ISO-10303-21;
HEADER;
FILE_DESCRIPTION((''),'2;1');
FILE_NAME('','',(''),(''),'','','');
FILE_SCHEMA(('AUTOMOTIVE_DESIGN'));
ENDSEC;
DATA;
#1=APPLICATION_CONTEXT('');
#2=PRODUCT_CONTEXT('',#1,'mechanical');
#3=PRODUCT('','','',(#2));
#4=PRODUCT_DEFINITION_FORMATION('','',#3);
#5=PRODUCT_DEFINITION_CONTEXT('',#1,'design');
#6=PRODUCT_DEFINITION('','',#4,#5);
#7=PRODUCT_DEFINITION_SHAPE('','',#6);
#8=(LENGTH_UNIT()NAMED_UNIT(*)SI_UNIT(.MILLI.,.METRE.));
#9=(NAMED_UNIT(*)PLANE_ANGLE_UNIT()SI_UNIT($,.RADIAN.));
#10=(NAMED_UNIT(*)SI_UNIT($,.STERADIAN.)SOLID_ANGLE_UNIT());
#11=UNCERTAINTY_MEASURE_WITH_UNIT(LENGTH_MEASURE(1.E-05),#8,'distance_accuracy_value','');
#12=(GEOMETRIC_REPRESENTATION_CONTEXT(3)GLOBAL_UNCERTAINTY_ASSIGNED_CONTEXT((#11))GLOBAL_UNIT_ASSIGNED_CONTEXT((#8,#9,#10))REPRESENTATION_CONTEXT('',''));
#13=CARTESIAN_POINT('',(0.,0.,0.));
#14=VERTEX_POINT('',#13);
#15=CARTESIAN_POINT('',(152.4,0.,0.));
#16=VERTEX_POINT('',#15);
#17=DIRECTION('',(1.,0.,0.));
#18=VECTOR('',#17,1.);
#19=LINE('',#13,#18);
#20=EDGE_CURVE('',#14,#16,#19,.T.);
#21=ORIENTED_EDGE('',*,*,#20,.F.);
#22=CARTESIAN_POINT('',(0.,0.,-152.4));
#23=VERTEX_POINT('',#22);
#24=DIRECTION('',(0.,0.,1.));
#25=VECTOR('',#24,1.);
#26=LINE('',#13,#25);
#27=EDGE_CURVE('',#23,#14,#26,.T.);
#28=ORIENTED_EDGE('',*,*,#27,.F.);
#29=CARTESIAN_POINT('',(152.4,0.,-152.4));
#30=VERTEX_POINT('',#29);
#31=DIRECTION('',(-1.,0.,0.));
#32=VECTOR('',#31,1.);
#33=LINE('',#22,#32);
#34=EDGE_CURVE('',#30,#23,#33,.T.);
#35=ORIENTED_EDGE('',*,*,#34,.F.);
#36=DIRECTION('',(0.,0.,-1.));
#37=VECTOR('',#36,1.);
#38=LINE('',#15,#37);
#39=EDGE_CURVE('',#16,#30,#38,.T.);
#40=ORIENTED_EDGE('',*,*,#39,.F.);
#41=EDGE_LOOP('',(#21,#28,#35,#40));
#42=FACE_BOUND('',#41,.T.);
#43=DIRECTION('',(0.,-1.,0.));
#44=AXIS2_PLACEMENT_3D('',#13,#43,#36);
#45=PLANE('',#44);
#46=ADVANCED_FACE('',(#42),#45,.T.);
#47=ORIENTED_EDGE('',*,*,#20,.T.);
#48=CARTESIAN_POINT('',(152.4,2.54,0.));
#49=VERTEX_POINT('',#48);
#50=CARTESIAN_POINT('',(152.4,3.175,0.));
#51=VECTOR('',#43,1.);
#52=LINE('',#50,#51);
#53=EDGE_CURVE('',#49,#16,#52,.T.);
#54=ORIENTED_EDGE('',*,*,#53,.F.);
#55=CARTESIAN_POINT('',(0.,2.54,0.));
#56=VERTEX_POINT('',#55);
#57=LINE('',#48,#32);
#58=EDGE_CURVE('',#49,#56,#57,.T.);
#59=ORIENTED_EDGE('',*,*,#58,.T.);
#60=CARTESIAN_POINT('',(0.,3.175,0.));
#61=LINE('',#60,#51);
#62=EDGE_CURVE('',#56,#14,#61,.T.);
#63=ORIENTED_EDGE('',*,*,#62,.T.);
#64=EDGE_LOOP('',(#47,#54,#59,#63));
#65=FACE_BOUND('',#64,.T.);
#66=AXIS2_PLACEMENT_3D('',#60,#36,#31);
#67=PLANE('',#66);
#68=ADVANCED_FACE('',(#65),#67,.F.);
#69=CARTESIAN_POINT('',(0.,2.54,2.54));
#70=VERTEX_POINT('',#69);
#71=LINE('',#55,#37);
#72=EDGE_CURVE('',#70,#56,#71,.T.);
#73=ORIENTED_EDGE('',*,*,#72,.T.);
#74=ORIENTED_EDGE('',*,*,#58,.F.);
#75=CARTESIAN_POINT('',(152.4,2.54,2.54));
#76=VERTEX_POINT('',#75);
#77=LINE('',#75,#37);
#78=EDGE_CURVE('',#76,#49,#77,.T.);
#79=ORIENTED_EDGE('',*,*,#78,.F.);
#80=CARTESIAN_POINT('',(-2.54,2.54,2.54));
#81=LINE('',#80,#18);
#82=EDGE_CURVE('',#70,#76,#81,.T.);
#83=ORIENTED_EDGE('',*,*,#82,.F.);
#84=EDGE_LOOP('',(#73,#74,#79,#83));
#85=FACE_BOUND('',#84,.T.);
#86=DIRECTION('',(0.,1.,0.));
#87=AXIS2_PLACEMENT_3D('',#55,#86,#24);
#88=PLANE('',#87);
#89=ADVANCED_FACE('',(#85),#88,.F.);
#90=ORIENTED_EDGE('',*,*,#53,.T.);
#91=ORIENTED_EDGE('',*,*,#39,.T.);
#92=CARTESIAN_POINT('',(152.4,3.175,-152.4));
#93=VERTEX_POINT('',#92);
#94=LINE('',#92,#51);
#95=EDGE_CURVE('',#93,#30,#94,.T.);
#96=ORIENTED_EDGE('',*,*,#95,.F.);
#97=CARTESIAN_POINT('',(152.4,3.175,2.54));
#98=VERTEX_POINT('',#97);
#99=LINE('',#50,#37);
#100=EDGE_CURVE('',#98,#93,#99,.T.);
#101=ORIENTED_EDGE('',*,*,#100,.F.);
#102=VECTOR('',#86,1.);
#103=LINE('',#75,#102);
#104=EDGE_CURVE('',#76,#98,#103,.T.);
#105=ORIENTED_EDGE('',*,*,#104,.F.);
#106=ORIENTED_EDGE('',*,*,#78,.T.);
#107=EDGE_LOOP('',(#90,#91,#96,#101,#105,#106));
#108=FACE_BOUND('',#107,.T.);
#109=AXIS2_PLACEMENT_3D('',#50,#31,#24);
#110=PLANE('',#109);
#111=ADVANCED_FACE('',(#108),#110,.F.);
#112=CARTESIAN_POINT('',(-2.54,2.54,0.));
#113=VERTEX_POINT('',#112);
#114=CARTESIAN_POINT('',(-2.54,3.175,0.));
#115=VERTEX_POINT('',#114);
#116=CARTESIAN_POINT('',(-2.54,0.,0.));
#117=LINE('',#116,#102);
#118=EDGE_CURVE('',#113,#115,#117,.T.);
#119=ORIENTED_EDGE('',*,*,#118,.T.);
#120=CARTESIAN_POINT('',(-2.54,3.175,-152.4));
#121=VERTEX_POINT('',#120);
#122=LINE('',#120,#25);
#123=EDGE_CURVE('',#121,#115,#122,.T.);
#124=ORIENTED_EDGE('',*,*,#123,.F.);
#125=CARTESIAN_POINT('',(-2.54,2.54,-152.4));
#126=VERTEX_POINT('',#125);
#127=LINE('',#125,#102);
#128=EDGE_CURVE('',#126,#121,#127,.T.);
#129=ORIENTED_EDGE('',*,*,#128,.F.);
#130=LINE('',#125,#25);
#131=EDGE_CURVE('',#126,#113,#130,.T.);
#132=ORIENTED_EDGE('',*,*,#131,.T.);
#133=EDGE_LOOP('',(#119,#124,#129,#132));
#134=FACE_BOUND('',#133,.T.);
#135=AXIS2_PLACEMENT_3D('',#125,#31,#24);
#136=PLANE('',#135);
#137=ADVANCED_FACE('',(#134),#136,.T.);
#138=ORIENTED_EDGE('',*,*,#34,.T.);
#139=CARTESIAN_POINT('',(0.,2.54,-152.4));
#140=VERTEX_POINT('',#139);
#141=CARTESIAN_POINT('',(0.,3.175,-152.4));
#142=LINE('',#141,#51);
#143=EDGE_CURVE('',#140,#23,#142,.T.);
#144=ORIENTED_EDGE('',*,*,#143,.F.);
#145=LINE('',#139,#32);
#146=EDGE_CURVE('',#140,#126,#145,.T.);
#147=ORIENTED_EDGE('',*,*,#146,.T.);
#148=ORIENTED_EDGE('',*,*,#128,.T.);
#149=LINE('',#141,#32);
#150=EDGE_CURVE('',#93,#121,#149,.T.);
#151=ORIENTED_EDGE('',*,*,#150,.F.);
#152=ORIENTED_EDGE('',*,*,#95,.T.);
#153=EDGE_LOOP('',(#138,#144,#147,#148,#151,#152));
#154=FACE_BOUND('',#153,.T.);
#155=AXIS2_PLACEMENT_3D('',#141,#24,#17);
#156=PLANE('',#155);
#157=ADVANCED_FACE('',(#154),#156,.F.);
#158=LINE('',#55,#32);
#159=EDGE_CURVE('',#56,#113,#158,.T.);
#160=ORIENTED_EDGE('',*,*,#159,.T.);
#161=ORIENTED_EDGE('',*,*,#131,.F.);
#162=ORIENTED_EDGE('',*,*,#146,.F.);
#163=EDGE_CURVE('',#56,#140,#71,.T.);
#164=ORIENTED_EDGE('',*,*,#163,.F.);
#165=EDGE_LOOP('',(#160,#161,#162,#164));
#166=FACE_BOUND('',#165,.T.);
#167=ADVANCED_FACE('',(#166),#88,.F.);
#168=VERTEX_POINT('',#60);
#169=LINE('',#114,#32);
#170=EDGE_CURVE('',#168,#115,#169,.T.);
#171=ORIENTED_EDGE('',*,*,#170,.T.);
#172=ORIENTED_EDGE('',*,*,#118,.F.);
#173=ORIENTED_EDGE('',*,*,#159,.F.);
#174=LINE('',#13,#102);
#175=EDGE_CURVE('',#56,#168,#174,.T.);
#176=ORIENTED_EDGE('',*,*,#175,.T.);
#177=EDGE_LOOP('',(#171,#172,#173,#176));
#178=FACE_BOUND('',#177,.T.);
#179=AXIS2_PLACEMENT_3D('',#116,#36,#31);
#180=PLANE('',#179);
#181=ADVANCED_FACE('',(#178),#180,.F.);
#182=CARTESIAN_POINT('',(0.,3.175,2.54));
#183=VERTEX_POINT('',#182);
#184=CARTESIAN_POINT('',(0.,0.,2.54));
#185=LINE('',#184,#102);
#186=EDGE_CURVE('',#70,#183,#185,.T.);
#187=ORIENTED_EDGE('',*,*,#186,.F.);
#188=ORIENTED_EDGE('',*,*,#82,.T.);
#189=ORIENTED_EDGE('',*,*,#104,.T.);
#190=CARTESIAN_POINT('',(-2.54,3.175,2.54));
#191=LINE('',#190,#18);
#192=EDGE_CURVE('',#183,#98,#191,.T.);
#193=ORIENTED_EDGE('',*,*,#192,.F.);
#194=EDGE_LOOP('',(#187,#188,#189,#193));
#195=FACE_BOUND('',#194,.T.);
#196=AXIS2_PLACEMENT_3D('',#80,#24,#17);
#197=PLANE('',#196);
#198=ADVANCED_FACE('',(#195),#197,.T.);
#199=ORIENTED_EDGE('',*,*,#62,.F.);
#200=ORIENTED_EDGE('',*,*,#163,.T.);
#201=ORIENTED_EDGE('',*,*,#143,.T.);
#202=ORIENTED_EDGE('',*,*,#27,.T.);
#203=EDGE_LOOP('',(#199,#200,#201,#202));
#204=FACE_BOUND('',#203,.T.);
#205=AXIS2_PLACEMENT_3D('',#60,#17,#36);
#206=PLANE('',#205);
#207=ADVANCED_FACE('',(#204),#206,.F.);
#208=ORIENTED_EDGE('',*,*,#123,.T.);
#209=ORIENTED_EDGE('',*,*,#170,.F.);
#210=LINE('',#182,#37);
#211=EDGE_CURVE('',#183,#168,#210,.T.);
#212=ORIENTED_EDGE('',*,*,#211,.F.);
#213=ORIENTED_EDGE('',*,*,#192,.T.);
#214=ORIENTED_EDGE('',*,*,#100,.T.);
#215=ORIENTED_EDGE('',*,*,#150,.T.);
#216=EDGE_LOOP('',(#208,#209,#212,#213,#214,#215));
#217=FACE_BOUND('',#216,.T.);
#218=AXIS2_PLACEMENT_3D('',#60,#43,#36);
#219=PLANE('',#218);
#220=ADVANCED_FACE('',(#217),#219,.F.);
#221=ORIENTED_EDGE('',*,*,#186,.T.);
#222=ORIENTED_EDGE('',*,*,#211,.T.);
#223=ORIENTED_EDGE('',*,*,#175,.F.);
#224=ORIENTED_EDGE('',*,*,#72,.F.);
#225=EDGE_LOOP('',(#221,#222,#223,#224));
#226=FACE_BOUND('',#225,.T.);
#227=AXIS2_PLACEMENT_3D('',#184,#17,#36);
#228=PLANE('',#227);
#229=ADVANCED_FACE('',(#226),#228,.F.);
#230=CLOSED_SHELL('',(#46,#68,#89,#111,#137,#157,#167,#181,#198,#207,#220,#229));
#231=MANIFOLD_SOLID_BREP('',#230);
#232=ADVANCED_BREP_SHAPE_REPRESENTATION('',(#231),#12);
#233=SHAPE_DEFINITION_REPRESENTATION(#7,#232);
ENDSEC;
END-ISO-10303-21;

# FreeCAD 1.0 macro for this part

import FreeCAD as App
import Part
import Sketcher

V = App.Vector
Q = App.Units.Quantity

doc = App.newDocument("Part")
body = doc.addObject("PartDesign::Body", "Body")

# Sketch on XZ plane
sketch1 = doc.addObject("Sketcher::SketchObject", "Sketch")
body.addObject(sketch1)
sketch1.AttachmentSupport = (doc.XZ_Plane, [""])
sketch1.MapMode = "FlatFace"
sketch1.addGeometry([
    Part.LineSegment(V(0, -152.4, 0), V(0, 0, 0)),
    Part.LineSegment(V(0, 0, 0), V(152.4, 0, 0)),
    Part.LineSegment(V(152.4, 0, 0), V(152.4, -152.4, 0)),
    Part.LineSegment(V(152.4, -152.4, 0), V(0, -152.4, 0)),
], False)
sketch1.addConstraint([
    Sketcher.Constraint("Coincident", 0, 2, 1, 1),
    Sketcher.Constraint("Coincident", 1, 2, 2, 1),
    Sketcher.Constraint("Coincident", 2, 2, 3, 1),
    Sketcher.Constraint("Coincident", 3, 2, 0, 1),
    Sketcher.Constraint("Vertical", 0),
    Sketcher.Constraint("Horizontal", 1),
    Sketcher.Constraint("Vertical", 2),
    Sketcher.Constraint("Horizontal", 3),
    Sketcher.Constraint("Coincident", 0, 2, -1, 1),
    Sketcher.Constraint("Equal", 3, 0),
    Sketcher.Constraint("DistanceX", 1, 1, 1, 2, Q("6 in")),
])
pad1 = doc.addObject("PartDesign::Pad", "Pad")
body.addObject(pad1)
pad1.Profile = sketch1
pad1.Length = Q("0.125 in")
pad1.Reversed = True

# Sketch on XZ plane
sketch2 = doc.addObject("Sketcher::SketchObject", "Sketch001")
body.addObject(sketch2)
sketch2.AttachmentSupport = (doc.XZ_Plane, [""])
sketch2.MapMode = "FlatFace"
sketch2.AttachmentOffset = App.Placement(V(0, 0, -0.125 * 25.4), App.Rotation())
sketch2.addGeometry([
    Part.LineSegment(V(0, -152.4, 0), V(-2.54, -152.4, 0)),  # 0
    Part.LineSegment(V(-2.54, -152.4, 0), V(-2.54, 2.54, 0)),  # 1
    Part.LineSegment(V(-2.54, 2.54, 0), V(152.4, 2.54, 0)),  # 2
    Part.LineSegment(V(152.4, 2.54, 0), V(152.4, 0, 0)),  # 3
    Part.LineSegment(V(152.4, 0, 0), V(0, 0, 0)),  # 4
    Part.LineSegment(V(0, 0, 0), V(0, -152.4, 0)),  # 5
], False)
sketch2.addConstraint([
    Sketcher.Constraint("Coincident", 0, 2, 1, 1),
    Sketcher.Constraint("Coincident", 1, 2, 2, 1),
    Sketcher.Constraint("Coincident", 2, 2, 3, 1),
    Sketcher.Constraint("Coincident", 3, 2, 4, 1),
    Sketcher.Constraint("Coincident", 4, 2, 5, 1),
    Sketcher.Constraint("Coincident", 5, 2, 0, 1),
    Sketcher.Constraint("Horizontal", 0),
    Sketcher.Constraint("Vertical", 1),
    Sketcher.Constraint("Horizontal", 2),
    Sketcher.Constraint("Vertical", 3),
    Sketcher.Constraint("Horizontal", 4),
    Sketcher.Constraint("Vertical", 5),
    Sketcher.Constraint("Coincident", 4, 2, -1, 1),
    Sketcher.Constraint("Equal", 2, 1),
    Sketcher.Constraint("Equal", 0, 3),
    Sketcher.Constraint("DistanceX", 4, 2, 4, 1, Q("6 in")),
    Sketcher.Constraint("DistanceX", 0, 2, 0, 1, Q("0.1 in")),
])
pad2 = doc.addObject("PartDesign::Pad", "Pad001")
body.addObject(pad2)
pad2.Profile = sketch2
pad2.Length = Q("0.025 in")

# Sketch on XZ plane
sketch3 = doc.addObject("Sketcher::SketchObject", "Sketch002")
body.addObject(sketch3)
sketch3.AttachmentSupport = (doc.XZ_Plane, [""])
sketch3.MapMode = "FlatFace"
sketch3.AttachmentOffset = App.Placement(V(0, 0, -0.125 * 25.4), App.Rotation())
sketch3.addGeometry([
    Part.LineSegment(V(-2.54, 0, 0), V(-2.54, 2.54, 0)),
    Part.LineSegment(V(-2.54, 2.54, 0), V(0, 2.54, 0)),
    Part.LineSegment(V(0, 2.54, 0), V(0, 0, 0)),
    Part.LineSegment(V(0, 0, 0), V(-2.54, 0, 0)),
], False)
sketch3.addConstraint([
    Sketcher.Constraint("Coincident", 0, 2, 1, 1),
    Sketcher.Constraint("Coincident", 1, 2, 2, 1),
    Sketcher.Constraint("Coincident", 2, 2, 3, 1),
    Sketcher.Constraint("Coincident", 3, 2, 0, 1),
    Sketcher.Constraint("Vertical", 0),
    Sketcher.Constraint("Horizontal", 1),
    Sketcher.Constraint("Vertical", 2),
    Sketcher.Constraint("Horizontal", 3),
    Sketcher.Constraint("Coincident", 2, 2, -1, 1),
    Sketcher.Constraint("Equal", 3, 0),
    Sketcher.Constraint("DistanceX", 1, 1, 1, 2, Q("0.1 in")),
])
pocket1 = doc.addObject("PartDesign::Pocket", "Pocket")
body.addObject(pocket1)
pocket1.Profile = sketch3
pocket1.Type = "ThroughAll"
pocket1.Reversed = True

doc.recompute()
